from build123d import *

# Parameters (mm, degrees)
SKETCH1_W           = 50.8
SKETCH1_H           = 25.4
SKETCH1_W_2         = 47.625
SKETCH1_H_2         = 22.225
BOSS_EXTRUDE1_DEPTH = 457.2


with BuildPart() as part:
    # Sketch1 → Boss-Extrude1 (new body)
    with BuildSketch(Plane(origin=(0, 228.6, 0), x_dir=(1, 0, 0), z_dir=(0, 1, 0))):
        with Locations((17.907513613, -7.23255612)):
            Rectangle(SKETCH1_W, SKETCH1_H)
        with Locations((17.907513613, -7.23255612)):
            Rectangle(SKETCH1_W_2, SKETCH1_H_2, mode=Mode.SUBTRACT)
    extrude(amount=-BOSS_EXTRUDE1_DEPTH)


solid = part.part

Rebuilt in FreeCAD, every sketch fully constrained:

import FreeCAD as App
import Part
import Sketcher
Q = App.Units.Quantity


def add_polygon(sketch, points):
    """Adds a closed chain of lines whose ends are joined by coincident constraints."""
    first, n = sketch.GeometryCount, len(points)
    for a, b in zip(points, points[1:] + points[:1]):
        sketch.addGeometry(Part.LineSegment(App.Vector(*a, 0), App.Vector(*b, 0)), False)
    for i in range(n):
        sketch.addConstraint(Sketcher.Constraint("Coincident", first + i, 2, first + (i + 1) % n, 1))

doc = App.newDocument("Part")
body = doc.addObject("PartDesign::Body", "Body")

sketch1 = doc.addObject("Sketcher::SketchObject", "Sketch")
body.addObject(sketch1)
sketch1.AttachmentSupport = (doc.XZ_Plane, [""])
sketch1.MapMode = "FlatFace"
sketch1.AttachmentOffset = App.Placement(App.Vector(0, 0, -9 * 25.4), App.Rotation())
add_polygon(sketch1, [(-7, -5), (-7, 20), (43, 20), (43, -5)])
add_polygon(sketch1, [(42, 18), (-6, 18), (-6, -4), (42, -4)])
sketch1.addConstraint(Sketcher.Constraint("Vertical", 0))
sketch1.addConstraint(Sketcher.Constraint("Horizontal", 1))
sketch1.addConstraint(Sketcher.Constraint("Vertical", 2))
sketch1.addConstraint(Sketcher.Constraint("Horizontal", 3))
sketch1.addConstraint(Sketcher.Constraint("Horizontal", 4))
sketch1.addConstraint(Sketcher.Constraint("Vertical", 5))
sketch1.addConstraint(Sketcher.Constraint("Horizontal", 6))
sketch1.addConstraint(Sketcher.Constraint("Vertical", 7))
sketch1.addConstraint(Sketcher.Constraint("DistanceX", 1, 1, 1, 2, Q("2 in")))
sketch1.addConstraint(Sketcher.Constraint("DistanceY", 0, 1, 0, 2, Q("1 in")))
sketch1.addConstraint(Sketcher.Constraint("DistanceX", 4, 2, 4, 1, Q("1.875 in")))
sketch1.addConstraint(Sketcher.Constraint("DistanceY", 5, 2, 5, 1, Q("0.875 in")))
sketch1.addConstraint(Sketcher.Constraint("DistanceX", 0, 2, 4, 2, Q("0.0625 in")))
sketch1.addConstraint(Sketcher.Constraint("DistanceY", 4, 2, 0, 2, Q("0.0625 in")))
sketch1.addConstraint(Sketcher.Constraint("DistanceX", 0, 2, -1, 1, 7.492486))
sketch1.addConstraint(Sketcher.Constraint("DistanceY", -1, 1, 0, 2, 19.932556))
pad1 = doc.addObject("PartDesign::Pad", "Pad")
body.addObject(pad1)
pad1.Profile = sketch1
pad1.Length = Q("18 in")

doc.recompute()
